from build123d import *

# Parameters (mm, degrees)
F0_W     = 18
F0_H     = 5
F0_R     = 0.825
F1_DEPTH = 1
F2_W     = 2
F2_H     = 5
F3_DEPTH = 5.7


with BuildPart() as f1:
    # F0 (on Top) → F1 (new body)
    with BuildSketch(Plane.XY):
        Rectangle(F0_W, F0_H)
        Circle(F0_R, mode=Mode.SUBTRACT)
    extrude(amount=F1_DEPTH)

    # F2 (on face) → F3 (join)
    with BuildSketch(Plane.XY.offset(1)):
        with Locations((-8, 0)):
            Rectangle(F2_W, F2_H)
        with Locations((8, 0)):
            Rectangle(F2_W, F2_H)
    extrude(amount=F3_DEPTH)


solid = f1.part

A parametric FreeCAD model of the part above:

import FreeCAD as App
import Part
import Sketcher

V = App.Vector


def add_polygon(sketch, points):
    """Adds a closed chain of lines whose ends are joined by coincident constraints."""
    first, n = sketch.GeometryCount, len(points)
    for a, b in zip(points, points[1:] + points[:1]):
        sketch.addGeometry(Part.LineSegment(App.Vector(*a, 0), App.Vector(*b, 0)), False)
    for i in range(n):
        sketch.addConstraint(Sketcher.Constraint("Coincident", first + i, 2, first + (i + 1) % n, 1))

doc = App.newDocument("Part")
body = doc.addObject("PartDesign::Body", "Body")

# Sketch on XY plane
sketch1 = body.newObject("Sketcher::SketchObject", "Sketch")
sketch1.AttachmentSupport = (doc.getObject("XY_Plane"), [""])
sketch1.MapMode = "FlatFace"
add_polygon(sketch1, [(-9, 2.5), (-9, -2.5), (9, -2.5), (9, 2.5)])  # lines 0-3
sketch1.addGeometry(Part.Circle(V(0, 0, 0), V(0, 0, 1), 0.8), False)  # 4
sketch1.addConstraint([
    Sketcher.Constraint("Vertical", 0),
    Sketcher.Constraint("Horizontal", 1),
    Sketcher.Constraint("Vertical", 2),
    Sketcher.Constraint("Horizontal", 3),
    Sketcher.Constraint("Coincident", 4, 3, -1, 1),
    Sketcher.Constraint("Symmetric", 0, 2, 2, 2, -1, 1),
    Sketcher.Constraint("Diameter", 4, 1.65),
    Sketcher.Constraint("DistanceX", 1, 1, 1, 2, 18.0),
    Sketcher.Constraint("DistanceY", 0, 2, 0, 1, 5.0),
])
pad1 = body.newObject("PartDesign::Pad", "Pad")
pad1.Profile = sketch1
pad1.Length = 1

# Sketch on XY plane
sketch2 = body.newObject("Sketcher::SketchObject", "Sketch001")
sketch2.AttachmentSupport = (doc.getObject("XY_Plane"), [""])
sketch2.MapMode = "FlatFace"
sketch2.AttachmentOffset = App.Placement(V(0, 0, 1), App.Rotation())
add_polygon(sketch2, [(-9, 2.5), (-9, -2.5), (-7, -2.5), (-7, 2.5)])  # lines 0-3
add_polygon(sketch2, [(7, 2.5), (7, -2.5), (9, -2.5), (9, 2.5)])  # lines 4-7
sketch2.addConstraint([
    Sketcher.Constraint("Vertical", 0),
    Sketcher.Constraint("Horizontal", 1),
    Sketcher.Constraint("Vertical", 2),
    Sketcher.Constraint("Horizontal", 3),
    Sketcher.Constraint("Vertical", 4),
    Sketcher.Constraint("Horizontal", 5),
    Sketcher.Constraint("Vertical", 6),
    Sketcher.Constraint("Horizontal", 7),
    Sketcher.Constraint("Symmetric", 2, 2, 4, 2, -1, 1),
    Sketcher.Constraint("Symmetric", 0, 2, 6, 2, -1, 1),
    Sketcher.Constraint("Horizontal", 1, 2, 4, 2),
    Sketcher.Constraint("DistanceX", 1, 1, 1, 2, 2.0),
    Sketcher.Constraint("DistanceY", 0, 2, 0, 1, 5.0),
    Sketcher.Constraint("DistanceX", 0, 2, -1, 1, 9.0),
])
pad2 = body.newObject("PartDesign::Pad", "Pad001")
pad2.Profile = sketch2
pad2.Length = 5.7

doc.recompute()
